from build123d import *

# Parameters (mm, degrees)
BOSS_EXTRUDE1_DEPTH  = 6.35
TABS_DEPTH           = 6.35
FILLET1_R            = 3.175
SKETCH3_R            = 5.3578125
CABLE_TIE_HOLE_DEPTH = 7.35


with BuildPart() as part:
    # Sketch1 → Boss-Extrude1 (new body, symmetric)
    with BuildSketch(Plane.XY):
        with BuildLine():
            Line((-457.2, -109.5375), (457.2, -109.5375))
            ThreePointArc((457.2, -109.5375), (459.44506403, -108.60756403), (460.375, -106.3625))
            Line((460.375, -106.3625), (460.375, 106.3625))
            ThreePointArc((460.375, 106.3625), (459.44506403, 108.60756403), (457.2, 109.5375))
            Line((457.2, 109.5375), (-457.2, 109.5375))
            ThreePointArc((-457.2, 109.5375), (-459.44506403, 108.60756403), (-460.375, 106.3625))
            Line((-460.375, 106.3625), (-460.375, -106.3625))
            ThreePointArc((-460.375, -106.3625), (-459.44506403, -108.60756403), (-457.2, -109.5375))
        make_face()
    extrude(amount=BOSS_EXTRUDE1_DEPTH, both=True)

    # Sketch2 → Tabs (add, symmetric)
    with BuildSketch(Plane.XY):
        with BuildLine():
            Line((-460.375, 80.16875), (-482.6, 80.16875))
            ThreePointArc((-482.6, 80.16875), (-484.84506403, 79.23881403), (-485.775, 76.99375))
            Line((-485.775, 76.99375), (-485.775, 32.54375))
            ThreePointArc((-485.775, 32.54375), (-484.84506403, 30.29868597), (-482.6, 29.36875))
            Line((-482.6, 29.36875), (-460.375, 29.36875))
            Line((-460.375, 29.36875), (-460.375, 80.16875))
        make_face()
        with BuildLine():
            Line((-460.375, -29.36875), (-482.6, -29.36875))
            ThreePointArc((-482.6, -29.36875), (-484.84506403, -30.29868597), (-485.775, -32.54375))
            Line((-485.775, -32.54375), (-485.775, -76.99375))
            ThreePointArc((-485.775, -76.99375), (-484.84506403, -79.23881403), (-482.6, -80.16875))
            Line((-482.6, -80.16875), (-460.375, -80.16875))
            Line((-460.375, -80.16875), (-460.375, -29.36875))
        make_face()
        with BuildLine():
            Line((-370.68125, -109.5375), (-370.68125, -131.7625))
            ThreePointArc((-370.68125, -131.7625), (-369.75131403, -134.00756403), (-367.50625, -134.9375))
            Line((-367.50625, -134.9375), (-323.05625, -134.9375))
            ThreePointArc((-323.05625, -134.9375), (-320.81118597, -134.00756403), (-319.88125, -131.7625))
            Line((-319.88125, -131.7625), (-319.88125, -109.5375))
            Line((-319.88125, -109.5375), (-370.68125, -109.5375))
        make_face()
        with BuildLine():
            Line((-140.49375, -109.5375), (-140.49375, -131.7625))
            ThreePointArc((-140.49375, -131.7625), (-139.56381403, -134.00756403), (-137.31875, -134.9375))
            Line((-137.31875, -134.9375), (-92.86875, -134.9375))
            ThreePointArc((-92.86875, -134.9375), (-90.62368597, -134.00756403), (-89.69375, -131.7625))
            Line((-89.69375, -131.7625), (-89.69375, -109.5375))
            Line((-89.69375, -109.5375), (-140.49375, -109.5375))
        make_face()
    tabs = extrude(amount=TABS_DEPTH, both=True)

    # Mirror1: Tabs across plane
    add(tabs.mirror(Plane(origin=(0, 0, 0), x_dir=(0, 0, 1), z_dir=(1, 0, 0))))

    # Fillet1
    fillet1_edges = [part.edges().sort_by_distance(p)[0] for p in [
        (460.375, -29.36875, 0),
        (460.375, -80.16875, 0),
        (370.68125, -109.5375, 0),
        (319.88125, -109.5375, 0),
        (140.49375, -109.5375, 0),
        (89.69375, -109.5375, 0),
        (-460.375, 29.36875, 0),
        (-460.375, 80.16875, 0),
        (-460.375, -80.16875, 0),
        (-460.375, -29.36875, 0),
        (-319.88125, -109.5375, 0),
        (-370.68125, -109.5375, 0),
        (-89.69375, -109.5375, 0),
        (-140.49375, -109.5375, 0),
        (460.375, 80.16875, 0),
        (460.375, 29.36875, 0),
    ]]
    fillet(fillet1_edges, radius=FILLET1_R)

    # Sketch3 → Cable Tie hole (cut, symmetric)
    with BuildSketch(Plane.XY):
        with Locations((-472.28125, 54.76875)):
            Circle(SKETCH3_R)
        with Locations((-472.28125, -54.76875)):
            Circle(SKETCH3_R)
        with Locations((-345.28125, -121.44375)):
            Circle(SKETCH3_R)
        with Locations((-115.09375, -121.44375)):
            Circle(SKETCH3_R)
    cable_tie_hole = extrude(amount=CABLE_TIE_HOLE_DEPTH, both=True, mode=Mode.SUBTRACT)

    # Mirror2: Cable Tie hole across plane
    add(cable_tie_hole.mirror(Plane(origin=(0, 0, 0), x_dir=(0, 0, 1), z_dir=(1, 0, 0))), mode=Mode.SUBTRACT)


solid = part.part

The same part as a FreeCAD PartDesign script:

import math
import FreeCAD as App
import Part
import Sketcher
from FreeCAD import Vector
Q = App.Units.Quantity


def edges_at(feature, points):
    """Names of the edges that pass closest to the given points."""
    edges = feature.Shape.Edges
    near = lambda p: min(range(len(edges)), key=lambda i: edges[i].distToShape(Part.Vertex(*p))[0])
    return sorted({f"Edge{near(p) + 1}" for p in points})

doc = App.newDocument("Part")
body = doc.addObject("PartDesign::Body", "Body")

sketch1 = body.newObject("Sketcher::SketchObject", "Sketch")
sketch1.AttachmentSupport = (doc.getObject("XY_Plane"), [""])
sketch1.MapMode = "FlatFace"
sketch1.addGeometry([
    Part.LineSegment(Vector(-457.2, -109.5, 0), Vector(457.2, -109.5, 0)),
    Part.ArcOfCircle(Part.Circle(Vector(457.2, -106.4, 0), Vector(0, 0, 1), 3.2), math.radians(-90), math.radians(0)),
    Part.LineSegment(Vector(460.4, -106.4, 0), Vector(460.4, 106.4, 0)),
    Part.ArcOfCircle(Part.Circle(Vector(457.2, 106.4, 0), Vector(0, 0, 1), 3.2), math.radians(0), math.radians(90)),
    Part.LineSegment(Vector(457.2, 109.5, 0), Vector(-457.2, 109.5, 0)),
    Part.ArcOfCircle(Part.Circle(Vector(-457.2, 106.4, 0), Vector(0, 0, 1), 3.2), math.radians(90), math.radians(180)),
    Part.LineSegment(Vector(-460.4, 106.4, 0), Vector(-460.4, -106.4, 0)),
    Part.ArcOfCircle(Part.Circle(Vector(-457.2, -106.4, 0), Vector(0, 0, 1), 3.2), math.radians(-180), math.radians(-90)),
], False)
sketch1.addConstraint([
    Sketcher.Constraint("Tangent", 0, 2, 1, 1),
    Sketcher.Constraint("Tangent", 1, 2, 2, 1),
    Sketcher.Constraint("Tangent", 2, 2, 3, 1),
    Sketcher.Constraint("Tangent", 3, 2, 4, 1),
    Sketcher.Constraint("Tangent", 4, 2, 5, 1),
    Sketcher.Constraint("Tangent", 5, 2, 6, 1),
    Sketcher.Constraint("Tangent", 6, 2, 7, 1),
    Sketcher.Constraint("Tangent", 7, 2, 0, 1),
    Sketcher.Constraint("Horizontal", 0),
    Sketcher.Constraint("Vertical", 2),
    Sketcher.Constraint("Horizontal", 4),
    Sketcher.Constraint("Vertical", 6),
    Sketcher.Constraint("Equal", 1, 3),
    Sketcher.Constraint("Equal", 3, 5),
    Sketcher.Constraint("Equal", 5, 7),
    Sketcher.Constraint("Symmetric", 1, 3, 5, 3, -1, 1),
    Sketcher.Constraint("DistanceX", 0, 1, 0, 2, Q("36 in")),
    Sketcher.Constraint("Radius", 1, Q("0.125 in")),
    Sketcher.Constraint("DistanceY", 0, 2, 3, 3, Q("8.5 in")),
])
pad1 = body.newObject("PartDesign::Pad", "Pad")
pad1.Profile = sketch1
pad1.Length = Q("0.5 in")
pad1.Midplane = True

sketch2 = body.newObject("Sketcher::SketchObject", "Sketch001")
sketch2.AttachmentSupport = (doc.getObject("XY_Plane"), [""])
sketch2.MapMode = "FlatFace"
sketch2.addGeometry([
    Part.LineSegment(Vector(-460.4, 80.2, 0), Vector(-482.6, 80.2, 0)),
    Part.ArcOfCircle(Part.Circle(Vector(-482.6, 77, 0), Vector(0, 0, 1), 3.2), math.radians(90), math.radians(180)),
    Part.LineSegment(Vector(-485.8, 77, 0), Vector(-485.8, 32.5, 0)),
    Part.ArcOfCircle(Part.Circle(Vector(-482.6, 32.5, 0), Vector(0, 0, 1), 3.2), math.radians(-180), math.radians(-90)),
    Part.LineSegment(Vector(-482.6, 29.4, 0), Vector(-460.4, 29.4, 0)),
    Part.LineSegment(Vector(-460.4, 29.4, 0), Vector(-460.4, 80.2, 0)),
    Part.LineSegment(Vector(-460.4, -29.4, 0), Vector(-482.6, -29.4, 0)),
    Part.ArcOfCircle(Part.Circle(Vector(-482.6, -32.5, 0), Vector(0, 0, 1), 3.2), math.radians(90), math.radians(180)),
    Part.LineSegment(Vector(-485.8, -32.5, 0), Vector(-485.8, -77, 0)),
    Part.ArcOfCircle(Part.Circle(Vector(-482.6, -77, 0), Vector(0, 0, 1), 3.2), math.radians(-180), math.radians(-90)),
    Part.LineSegment(Vector(-482.6, -80.2, 0), Vector(-460.4, -80.2, 0)),
    Part.LineSegment(Vector(-460.4, -80.2, 0), Vector(-460.4, -29.4, 0)),
    Part.LineSegment(Vector(-370.7, -109.5, 0), Vector(-370.7, -131.8, 0)),
    Part.ArcOfCircle(Part.Circle(Vector(-367.5, -131.8, 0), Vector(0, 0, 1), 3.2), math.radians(-180), math.radians(-90)),
    Part.LineSegment(Vector(-367.5, -134.9, 0), Vector(-323.1, -134.9, 0)),
    Part.ArcOfCircle(Part.Circle(Vector(-323.1, -131.8, 0), Vector(0, 0, 1), 3.2), math.radians(-90), math.radians(0)),
    Part.LineSegment(Vector(-319.9, -131.8, 0), Vector(-319.9, -109.5, 0)),
    Part.LineSegment(Vector(-319.9, -109.5, 0), Vector(-370.7, -109.5, 0)),
    Part.LineSegment(Vector(-140.5, -109.5, 0), Vector(-140.5, -131.8, 0)),
    Part.ArcOfCircle(Part.Circle(Vector(-137.3, -131.8, 0), Vector(0, 0, 1), 3.2), math.radians(-180), math.radians(-90)),
    Part.LineSegment(Vector(-137.3, -134.9, 0), Vector(-92.9, -134.9, 0)),
    Part.ArcOfCircle(Part.Circle(Vector(-92.9, -131.8, 0), Vector(0, 0, 1), 3.2), math.radians(-90), math.radians(0)),
    Part.LineSegment(Vector(-89.7, -131.8, 0), Vector(-89.7, -109.5, 0)),
    Part.LineSegment(Vector(-89.7, -109.5, 0), Vector(-140.5, -109.5, 0)),
], False)
sketch2.addConstraint([
    Sketcher.Constraint("Tangent", 0, 2, 1, 1),
    Sketcher.Constraint("Tangent", 1, 2, 2, 1),
    Sketcher.Constraint("Tangent", 2, 2, 3, 1),
    Sketcher.Constraint("Tangent", 3, 2, 4, 1),
    Sketcher.Constraint("Coincident", 4, 2, 5, 1),
    Sketcher.Constraint("Coincident", 5, 2, 0, 1),
    Sketcher.Constraint("Tangent", 6, 2, 7, 1),
    Sketcher.Constraint("Tangent", 7, 2, 8, 1),
    Sketcher.Constraint("Tangent", 8, 2, 9, 1),
    Sketcher.Constraint("Tangent", 9, 2, 10, 1),
    Sketcher.Constraint("Coincident", 10, 2, 11, 1),
    Sketcher.Constraint("Coincident", 11, 2, 6, 1),
    Sketcher.Constraint("Tangent", 12, 2, 13, 1),
    Sketcher.Constraint("Tangent", 13, 2, 14, 1),
    Sketcher.Constraint("Tangent", 14, 2, 15, 1),
    Sketcher.Constraint("Tangent", 15, 2, 16, 1),
    Sketcher.Constraint("Coincident", 16, 2, 17, 1),
    Sketcher.Constraint("Coincident", 17, 2, 12, 1),
    Sketcher.Constraint("Tangent", 18, 2, 19, 1),
    Sketcher.Constraint("Tangent", 19, 2, 20, 1),
    Sketcher.Constraint("Tangent", 20, 2, 21, 1),
    Sketcher.Constraint("Tangent", 21, 2, 22, 1),
    Sketcher.Constraint("Coincident", 22, 2, 23, 1),
    Sketcher.Constraint("Coincident", 23, 2, 18, 1),
    Sketcher.Constraint("Horizontal", 0),
    Sketcher.Constraint("Vertical", 2),
    Sketcher.Constraint("Horizontal", 4),
    Sketcher.Constraint("Vertical", 5),
    Sketcher.Constraint("Horizontal", 6),
    Sketcher.Constraint("Vertical", 8),
    Sketcher.Constraint("Horizontal", 10),
    Sketcher.Constraint("Vertical", 11),
    Sketcher.Constraint("Vertical", 12),
    Sketcher.Constraint("Horizontal", 14),
    Sketcher.Constraint("Vertical", 16),
    Sketcher.Constraint("Horizontal", 17),
    Sketcher.Constraint("Vertical", 18),
    Sketcher.Constraint("Horizontal", 20),
    Sketcher.Constraint("Vertical", 22),
    Sketcher.Constraint("Horizontal", 23),
    Sketcher.Constraint("Equal", 1, 3),
    Sketcher.Constraint("Equal", 3, 7),
    Sketcher.Constraint("Equal", 7, 9),
    Sketcher.Constraint("Equal", 9, 13),
    Sketcher.Constraint("Equal", 13, 15),
    Sketcher.Constraint("Equal", 15, 19),
    Sketcher.Constraint("Equal", 19, 21),
    Sketcher.Constraint("Symmetric", 3, 3, 7, 3, -1),
    Sketcher.Constraint("Symmetric", 5, 2, 10, 2, -1),
    Sketcher.Constraint("Horizontal", 15, 3, 19, 3),
    Sketcher.Constraint("Horizontal", 17, 2, 22, 2),
    Sketcher.Constraint("Equal", 14, 20),
    Sketcher.Constraint("Equal", 20, 2),
    Sketcher.Constraint("Equal", 10, 12),
    Sketcher.Constraint("DistanceX", 17, 2, 17, 1, Q("2 in")),
    Sketcher.Constraint("DistanceX", 1, 3, -1, 1, Q("19 in")),
    Sketcher.Constraint("Radius", 1, Q("0.125 in")),
    Sketcher.Constraint("DistanceX", 2, 2, 4, 2, Q("1 in")),
    Sketcher.Constraint("DistanceY", -1, 1, 1, 3, Q("3.03125 in")),
    Sketcher.Constraint("DistanceX", 13, 3, -1, 1, Q("14.46875 in")),
    Sketcher.Constraint("DistanceY", 13, 3, -1, 1, Q("5.1875 in")),
    Sketcher.Constraint("DistanceX", 19, 3, -1, 1, Q("5.40625 in")),
])
pad2 = body.newObject("PartDesign::Pad", "Pad001")
pad2.Profile = sketch2
pad2.Length = Q("0.5 in")
pad2.Midplane = True
doc.recompute()

mirrored = body.newObject("PartDesign::Mirrored", "Mirrored")
mirrored.Originals = [pad2]
mirrored.MirrorPlane = (doc.getObject("YZ_Plane"), [""])
body.Tip = mirrored
doc.recompute()

fillet = body.newObject("PartDesign::Fillet", "Fillet")
fillet.Base = (mirrored, edges_at(mirrored, [
    (460.375, -29.369, 0),
    (460.375, -80.169, 0),
    (370.681, -109.537, 0),
    (319.881, -109.537, 0),
    (140.494, -109.537, 0),
    (89.694, -109.537, 0),
    (-460.375, 29.369, 0),
    (-460.375, 80.169, 0),
    (-460.375, -80.169, 0),
    (-460.375, -29.369, 0),
    (-319.881, -109.537, 0),
    (-370.681, -109.537, 0),
    (-89.694, -109.537, 0),
    (-140.494, -109.537, 0),
    (460.375, 80.169, 0),
    (460.375, 29.369, 0),
]))
fillet.Radius = Q("0.125 in")

sketch3 = body.newObject("Sketcher::SketchObject", "Sketch002")
sketch3.AttachmentSupport = (doc.getObject("XY_Plane"), [""])
sketch3.MapMode = "FlatFace"
sketch3.addGeometry([
    Part.Circle(Vector(-472, 55, 0), Vector(0, 0, 1), 5),
    Part.Circle(Vector(-472, -55, 0), Vector(0, 0, 1), 5),
    Part.Circle(Vector(-345, -121, 0), Vector(0, 0, 1), 5),
    Part.Circle(Vector(-115, -121, 0), Vector(0, 0, 1), 5),
], False)
sketch3.addConstraint([
    Sketcher.Constraint("Equal", 0, 1),
    Sketcher.Constraint("Equal", 1, 2),
    Sketcher.Constraint("Equal", 2, 3),
    Sketcher.Constraint("Symmetric", 0, 3, 1, 3, -1),
    Sketcher.Constraint("Horizontal", 2, 3, 3, 3),
    Sketcher.Constraint("Diameter", 0, Q("0.421875 in")),
    Sketcher.Constraint("DistanceX", 1, 3, 2, 3, Q("5 in")),
    Sketcher.Constraint("DistanceX", 0, 3, -1, 1, Q("18.59375 in")),
    Sketcher.Constraint("DistanceY", -1, 1, 0, 3, Q("2.15625 in")),
    Sketcher.Constraint("DistanceY", 2, 3, -1, 1, Q("4.78125 in")),
    Sketcher.Constraint("DistanceX", 3, 3, -1, 1, Q("4.53125 in")),
])
pocket1 = body.newObject("PartDesign::Pocket", "Pocket")
pocket1.Profile = sketch3
pocket1.Length = 14.7
pocket1.Midplane = True
doc.recompute()

mirrored2 = body.newObject("PartDesign::Mirrored", "Mirrored001")
mirrored2.Originals = [pocket1]
mirrored2.MirrorPlane = (doc.getObject("YZ_Plane"), [""])
body.Tip = mirrored2

doc.recompute()
